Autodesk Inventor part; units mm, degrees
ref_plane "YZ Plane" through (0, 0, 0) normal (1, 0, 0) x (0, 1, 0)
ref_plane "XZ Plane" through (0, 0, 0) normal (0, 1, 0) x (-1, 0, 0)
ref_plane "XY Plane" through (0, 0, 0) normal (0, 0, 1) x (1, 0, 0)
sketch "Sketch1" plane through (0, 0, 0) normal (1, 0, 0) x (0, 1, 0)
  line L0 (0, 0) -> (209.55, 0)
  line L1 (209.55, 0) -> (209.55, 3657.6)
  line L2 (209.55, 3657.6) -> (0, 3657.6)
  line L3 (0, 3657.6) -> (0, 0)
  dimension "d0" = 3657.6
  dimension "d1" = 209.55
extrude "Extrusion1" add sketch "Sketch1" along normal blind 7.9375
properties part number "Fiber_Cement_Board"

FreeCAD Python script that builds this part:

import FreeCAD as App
import Part
import Sketcher
Q = App.Units.Quantity


def add_polygon(sketch, points):
    """Adds a closed chain of lines whose ends are joined by coincident constraints."""
    first, n = sketch.GeometryCount, len(points)
    for a, b in zip(points, points[1:] + points[:1]):
        sketch.addGeometry(Part.LineSegment(App.Vector(*a, 0), App.Vector(*b, 0)), False)
    for i in range(n):
        sketch.addConstraint(Sketcher.Constraint("Coincident", first + i, 2, first + (i + 1) % n, 1))

doc = App.newDocument("Part")
params = doc.addObject("Spreadsheet::Sheet", "Params")
for row, (alias, value) in enumerate([
    ("sketch1_height", "144 in"),
    ("sketch1_width", "8.25 in"),
    ("pad1_length", "0.3125 in"),
], start=1):
    params.set(f"A{row}", alias)
    params.set(f"B{row}", "=" + value)
    params.setAlias(f"B{row}", alias)

body = doc.addObject("PartDesign::Body", "Body")

# Sketch on YZ plane
sketch1 = body.newObject("Sketcher::SketchObject", "Sketch")
sketch1.AttachmentSupport = (doc.getObject("YZ_Plane"), [""])
sketch1.MapMode = "FlatFace"
add_polygon(sketch1, [(0, 3658), (0, 0), (210, 0), (210, 3658)])  # lines 0-3
sketch1.addConstraint([
    Sketcher.Constraint("Vertical", 0),
    Sketcher.Constraint("Horizontal", 1),
    Sketcher.Constraint("Vertical", 2),
    Sketcher.Constraint("Horizontal", 3),
    Sketcher.Constraint("Coincident", 0, 2, -1, 1),
    Sketcher.Constraint("DistanceY", 0, 2, 0, 1, Q("144 in")),
    Sketcher.Constraint("DistanceX", 1, 1, 1, 2, Q("8.25 in")),
])
sketch1.setExpression("Constraints[9]", "Params.sketch1_height")
sketch1.setExpression("Constraints[10]", "Params.sketch1_width")
pad1 = body.newObject("PartDesign::Pad", "Pad")
pad1.Profile = sketch1
pad1.setExpression("Length", "Params.pad1_length")

doc.recompute()
